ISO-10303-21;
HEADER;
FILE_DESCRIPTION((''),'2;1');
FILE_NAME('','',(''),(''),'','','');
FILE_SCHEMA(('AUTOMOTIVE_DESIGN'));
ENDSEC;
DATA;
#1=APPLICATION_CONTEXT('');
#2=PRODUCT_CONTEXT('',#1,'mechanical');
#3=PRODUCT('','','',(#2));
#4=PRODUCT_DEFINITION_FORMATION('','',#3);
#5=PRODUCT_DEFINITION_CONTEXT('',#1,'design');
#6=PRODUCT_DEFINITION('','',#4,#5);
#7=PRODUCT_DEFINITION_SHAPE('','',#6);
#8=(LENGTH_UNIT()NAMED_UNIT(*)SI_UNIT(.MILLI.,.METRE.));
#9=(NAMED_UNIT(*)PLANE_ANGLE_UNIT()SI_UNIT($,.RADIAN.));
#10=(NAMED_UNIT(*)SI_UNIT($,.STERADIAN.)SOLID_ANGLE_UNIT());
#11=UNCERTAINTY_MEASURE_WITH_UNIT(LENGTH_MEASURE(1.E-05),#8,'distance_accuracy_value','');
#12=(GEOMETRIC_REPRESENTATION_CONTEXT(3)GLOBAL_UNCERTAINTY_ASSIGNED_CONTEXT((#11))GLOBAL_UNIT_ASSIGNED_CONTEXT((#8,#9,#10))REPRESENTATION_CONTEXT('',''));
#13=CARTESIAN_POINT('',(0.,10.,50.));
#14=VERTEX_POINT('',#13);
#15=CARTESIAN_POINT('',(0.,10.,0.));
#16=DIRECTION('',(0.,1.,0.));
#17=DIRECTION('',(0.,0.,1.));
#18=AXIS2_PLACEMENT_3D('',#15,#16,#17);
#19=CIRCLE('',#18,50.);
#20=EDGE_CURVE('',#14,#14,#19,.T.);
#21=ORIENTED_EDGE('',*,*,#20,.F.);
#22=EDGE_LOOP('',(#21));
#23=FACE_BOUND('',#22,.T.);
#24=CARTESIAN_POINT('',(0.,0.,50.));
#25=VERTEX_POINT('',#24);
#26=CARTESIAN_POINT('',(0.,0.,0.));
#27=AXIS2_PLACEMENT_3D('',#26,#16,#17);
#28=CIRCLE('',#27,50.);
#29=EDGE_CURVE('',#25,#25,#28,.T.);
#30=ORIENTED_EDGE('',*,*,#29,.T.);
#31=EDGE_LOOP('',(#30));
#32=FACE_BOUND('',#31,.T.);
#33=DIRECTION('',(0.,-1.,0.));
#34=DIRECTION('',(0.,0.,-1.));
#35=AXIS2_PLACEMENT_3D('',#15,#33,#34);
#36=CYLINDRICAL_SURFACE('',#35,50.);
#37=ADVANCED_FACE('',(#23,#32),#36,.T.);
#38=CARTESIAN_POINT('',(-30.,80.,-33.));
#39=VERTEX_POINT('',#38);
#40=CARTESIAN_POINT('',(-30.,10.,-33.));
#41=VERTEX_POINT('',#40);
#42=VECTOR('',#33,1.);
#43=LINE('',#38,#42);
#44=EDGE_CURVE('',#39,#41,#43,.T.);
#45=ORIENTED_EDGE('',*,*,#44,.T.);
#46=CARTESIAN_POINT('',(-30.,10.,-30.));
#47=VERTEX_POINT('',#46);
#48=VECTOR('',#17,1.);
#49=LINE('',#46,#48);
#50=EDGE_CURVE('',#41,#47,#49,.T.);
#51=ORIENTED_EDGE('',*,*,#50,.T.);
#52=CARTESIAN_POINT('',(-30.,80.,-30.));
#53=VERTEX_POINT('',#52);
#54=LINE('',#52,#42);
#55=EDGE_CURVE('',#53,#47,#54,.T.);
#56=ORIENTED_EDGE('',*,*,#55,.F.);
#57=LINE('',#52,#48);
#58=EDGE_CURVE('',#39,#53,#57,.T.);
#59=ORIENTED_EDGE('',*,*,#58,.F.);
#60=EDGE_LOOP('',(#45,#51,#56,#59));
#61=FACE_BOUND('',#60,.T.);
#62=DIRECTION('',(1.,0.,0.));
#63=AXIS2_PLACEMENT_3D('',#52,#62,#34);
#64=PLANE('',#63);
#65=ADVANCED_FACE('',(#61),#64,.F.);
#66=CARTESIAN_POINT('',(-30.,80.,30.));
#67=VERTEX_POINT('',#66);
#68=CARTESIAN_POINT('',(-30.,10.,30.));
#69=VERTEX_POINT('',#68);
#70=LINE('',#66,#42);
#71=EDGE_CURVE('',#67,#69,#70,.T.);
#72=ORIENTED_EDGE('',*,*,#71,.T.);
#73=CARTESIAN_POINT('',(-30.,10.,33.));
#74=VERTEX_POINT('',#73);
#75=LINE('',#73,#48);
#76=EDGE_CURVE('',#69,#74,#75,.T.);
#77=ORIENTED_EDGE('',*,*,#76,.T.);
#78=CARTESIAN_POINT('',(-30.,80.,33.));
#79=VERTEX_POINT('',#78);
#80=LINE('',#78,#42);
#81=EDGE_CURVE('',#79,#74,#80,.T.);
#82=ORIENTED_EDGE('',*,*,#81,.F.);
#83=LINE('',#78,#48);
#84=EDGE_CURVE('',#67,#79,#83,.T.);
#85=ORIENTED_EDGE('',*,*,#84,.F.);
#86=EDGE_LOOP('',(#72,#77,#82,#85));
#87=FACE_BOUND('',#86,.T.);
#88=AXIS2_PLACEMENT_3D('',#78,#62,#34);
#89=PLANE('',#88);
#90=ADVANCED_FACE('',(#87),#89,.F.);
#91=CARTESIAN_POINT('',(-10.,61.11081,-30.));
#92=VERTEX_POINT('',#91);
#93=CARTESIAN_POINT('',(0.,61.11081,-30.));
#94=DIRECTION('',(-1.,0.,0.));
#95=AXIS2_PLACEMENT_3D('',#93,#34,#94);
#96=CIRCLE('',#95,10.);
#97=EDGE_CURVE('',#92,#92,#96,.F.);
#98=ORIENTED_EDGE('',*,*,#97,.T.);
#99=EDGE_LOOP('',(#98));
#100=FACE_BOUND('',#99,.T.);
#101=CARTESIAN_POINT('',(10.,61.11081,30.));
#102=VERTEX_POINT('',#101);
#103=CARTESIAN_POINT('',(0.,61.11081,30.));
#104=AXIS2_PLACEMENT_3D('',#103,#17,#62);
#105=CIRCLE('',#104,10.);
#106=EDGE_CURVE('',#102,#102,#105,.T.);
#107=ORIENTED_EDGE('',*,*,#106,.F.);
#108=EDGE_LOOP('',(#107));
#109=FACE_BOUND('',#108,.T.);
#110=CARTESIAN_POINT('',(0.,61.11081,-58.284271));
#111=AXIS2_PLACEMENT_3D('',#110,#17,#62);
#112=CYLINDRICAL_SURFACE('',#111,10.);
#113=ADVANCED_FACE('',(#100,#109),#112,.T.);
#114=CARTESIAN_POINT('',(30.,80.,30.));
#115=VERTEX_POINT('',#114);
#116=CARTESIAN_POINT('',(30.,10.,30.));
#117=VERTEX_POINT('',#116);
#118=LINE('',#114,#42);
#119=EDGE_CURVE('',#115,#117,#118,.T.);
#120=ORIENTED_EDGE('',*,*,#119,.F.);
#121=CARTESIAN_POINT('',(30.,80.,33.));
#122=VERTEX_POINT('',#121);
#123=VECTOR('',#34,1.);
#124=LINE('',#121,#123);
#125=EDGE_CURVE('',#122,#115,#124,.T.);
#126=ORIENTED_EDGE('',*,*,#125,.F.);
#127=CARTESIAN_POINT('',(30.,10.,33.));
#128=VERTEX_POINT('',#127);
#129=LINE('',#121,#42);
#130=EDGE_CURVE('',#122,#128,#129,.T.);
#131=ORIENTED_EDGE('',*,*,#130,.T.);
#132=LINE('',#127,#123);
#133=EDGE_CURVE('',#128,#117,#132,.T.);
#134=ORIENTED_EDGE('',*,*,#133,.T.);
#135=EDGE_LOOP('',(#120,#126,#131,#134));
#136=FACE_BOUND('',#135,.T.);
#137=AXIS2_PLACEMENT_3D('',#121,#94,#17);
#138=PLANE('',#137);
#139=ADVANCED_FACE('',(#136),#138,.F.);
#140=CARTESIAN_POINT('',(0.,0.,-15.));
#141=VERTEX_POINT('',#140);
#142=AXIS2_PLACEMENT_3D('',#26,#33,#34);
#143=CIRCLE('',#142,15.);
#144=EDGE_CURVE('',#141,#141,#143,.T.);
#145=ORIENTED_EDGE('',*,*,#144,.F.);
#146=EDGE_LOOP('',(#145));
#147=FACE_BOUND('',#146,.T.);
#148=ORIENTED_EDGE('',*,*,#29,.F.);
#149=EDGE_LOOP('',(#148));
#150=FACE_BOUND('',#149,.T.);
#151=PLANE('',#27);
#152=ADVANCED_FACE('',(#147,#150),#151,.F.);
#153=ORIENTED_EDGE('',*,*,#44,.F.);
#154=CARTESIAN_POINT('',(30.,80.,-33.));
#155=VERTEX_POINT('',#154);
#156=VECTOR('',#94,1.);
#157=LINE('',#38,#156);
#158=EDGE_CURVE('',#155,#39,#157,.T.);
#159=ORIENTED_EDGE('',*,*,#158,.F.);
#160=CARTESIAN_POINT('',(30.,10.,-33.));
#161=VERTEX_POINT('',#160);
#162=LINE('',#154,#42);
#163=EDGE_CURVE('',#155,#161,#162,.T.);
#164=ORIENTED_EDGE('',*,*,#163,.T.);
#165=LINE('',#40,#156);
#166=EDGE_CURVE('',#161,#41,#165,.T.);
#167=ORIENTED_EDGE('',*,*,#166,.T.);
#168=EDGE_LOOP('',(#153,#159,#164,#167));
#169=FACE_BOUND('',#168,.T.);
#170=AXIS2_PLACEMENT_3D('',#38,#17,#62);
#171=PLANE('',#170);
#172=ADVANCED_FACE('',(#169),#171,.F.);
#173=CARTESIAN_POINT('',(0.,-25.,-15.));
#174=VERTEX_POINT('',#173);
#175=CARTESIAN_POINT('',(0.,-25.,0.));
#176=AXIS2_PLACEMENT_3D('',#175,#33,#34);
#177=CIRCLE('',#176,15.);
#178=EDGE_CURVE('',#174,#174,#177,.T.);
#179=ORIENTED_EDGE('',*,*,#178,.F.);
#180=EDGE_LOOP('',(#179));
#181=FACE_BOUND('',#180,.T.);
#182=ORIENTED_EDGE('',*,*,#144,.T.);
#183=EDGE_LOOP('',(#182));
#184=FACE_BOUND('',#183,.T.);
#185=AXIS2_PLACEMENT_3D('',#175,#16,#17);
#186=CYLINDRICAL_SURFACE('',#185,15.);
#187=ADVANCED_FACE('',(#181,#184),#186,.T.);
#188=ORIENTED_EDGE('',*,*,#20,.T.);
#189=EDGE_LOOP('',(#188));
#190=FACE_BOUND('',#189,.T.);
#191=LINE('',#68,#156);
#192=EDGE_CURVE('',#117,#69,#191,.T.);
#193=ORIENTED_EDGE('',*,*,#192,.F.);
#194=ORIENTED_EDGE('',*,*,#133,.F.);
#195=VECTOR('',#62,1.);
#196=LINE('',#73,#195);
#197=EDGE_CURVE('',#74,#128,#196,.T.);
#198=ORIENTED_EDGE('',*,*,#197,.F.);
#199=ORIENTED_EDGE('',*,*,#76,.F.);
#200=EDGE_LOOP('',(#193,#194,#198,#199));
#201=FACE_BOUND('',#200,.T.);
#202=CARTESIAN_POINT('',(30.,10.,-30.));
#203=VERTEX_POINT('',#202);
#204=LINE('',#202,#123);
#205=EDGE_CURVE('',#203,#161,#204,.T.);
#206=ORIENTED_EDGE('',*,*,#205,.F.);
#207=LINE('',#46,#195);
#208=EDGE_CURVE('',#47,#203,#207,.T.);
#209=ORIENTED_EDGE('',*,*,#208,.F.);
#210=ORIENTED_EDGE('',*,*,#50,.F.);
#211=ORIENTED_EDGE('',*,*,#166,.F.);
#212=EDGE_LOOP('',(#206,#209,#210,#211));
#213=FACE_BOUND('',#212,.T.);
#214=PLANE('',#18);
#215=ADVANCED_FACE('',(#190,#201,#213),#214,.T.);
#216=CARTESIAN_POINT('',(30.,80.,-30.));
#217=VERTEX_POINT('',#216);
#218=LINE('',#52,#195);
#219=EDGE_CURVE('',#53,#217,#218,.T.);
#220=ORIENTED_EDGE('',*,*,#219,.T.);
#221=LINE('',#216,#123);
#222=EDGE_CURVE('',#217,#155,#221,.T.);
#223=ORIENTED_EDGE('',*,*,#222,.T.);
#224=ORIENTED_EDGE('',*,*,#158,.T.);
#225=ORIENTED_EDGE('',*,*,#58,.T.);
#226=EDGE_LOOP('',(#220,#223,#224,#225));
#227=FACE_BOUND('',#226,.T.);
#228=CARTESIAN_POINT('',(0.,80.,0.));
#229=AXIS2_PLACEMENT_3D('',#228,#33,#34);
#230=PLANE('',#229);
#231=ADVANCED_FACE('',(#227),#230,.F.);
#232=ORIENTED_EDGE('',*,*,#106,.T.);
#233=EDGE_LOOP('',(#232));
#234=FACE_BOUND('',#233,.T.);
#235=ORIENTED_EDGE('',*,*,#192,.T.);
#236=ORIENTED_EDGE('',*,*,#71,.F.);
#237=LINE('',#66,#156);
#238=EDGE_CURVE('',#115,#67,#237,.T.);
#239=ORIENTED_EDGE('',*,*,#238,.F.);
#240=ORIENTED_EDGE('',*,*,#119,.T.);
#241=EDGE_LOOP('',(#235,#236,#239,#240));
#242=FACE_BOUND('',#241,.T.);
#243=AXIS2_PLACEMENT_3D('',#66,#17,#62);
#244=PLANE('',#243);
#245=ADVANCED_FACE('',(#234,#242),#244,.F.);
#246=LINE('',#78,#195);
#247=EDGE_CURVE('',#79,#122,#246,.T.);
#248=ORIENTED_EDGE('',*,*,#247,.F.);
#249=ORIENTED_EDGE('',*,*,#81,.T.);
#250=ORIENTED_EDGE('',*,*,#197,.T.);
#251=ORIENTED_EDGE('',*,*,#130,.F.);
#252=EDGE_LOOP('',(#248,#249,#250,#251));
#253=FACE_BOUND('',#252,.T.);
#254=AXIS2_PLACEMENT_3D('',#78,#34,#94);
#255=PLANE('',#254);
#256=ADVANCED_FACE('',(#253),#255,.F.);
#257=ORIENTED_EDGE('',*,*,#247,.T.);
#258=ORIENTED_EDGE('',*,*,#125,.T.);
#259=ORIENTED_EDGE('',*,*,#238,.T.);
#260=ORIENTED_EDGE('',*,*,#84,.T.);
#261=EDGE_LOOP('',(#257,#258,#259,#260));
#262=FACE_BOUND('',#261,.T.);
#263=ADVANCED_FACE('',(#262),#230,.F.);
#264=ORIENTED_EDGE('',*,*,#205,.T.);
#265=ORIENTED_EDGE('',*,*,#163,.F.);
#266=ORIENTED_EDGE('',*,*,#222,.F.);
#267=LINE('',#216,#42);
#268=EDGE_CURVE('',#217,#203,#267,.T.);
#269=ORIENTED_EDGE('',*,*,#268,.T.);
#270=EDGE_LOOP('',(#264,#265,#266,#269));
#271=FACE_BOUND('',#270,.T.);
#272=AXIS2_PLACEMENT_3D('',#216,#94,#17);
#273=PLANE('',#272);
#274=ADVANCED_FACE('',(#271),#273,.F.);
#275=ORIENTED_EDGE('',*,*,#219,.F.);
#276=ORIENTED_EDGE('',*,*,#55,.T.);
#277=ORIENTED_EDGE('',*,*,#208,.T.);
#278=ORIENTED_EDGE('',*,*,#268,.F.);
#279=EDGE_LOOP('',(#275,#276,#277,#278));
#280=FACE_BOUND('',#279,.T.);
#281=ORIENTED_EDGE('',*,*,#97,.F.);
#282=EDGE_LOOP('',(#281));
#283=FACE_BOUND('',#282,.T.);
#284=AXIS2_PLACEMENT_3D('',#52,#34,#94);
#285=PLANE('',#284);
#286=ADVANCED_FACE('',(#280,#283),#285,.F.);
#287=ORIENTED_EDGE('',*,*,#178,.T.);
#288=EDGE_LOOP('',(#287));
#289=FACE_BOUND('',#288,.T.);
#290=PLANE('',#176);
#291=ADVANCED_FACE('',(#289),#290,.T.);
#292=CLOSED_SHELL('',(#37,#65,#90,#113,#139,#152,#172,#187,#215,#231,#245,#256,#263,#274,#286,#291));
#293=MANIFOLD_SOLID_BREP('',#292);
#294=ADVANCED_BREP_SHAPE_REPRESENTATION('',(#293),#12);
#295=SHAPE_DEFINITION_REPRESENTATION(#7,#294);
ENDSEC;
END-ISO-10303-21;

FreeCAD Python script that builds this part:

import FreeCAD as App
import Part
import Sketcher

V = App.Vector

doc = App.newDocument("Part")
params = doc.addObject("Spreadsheet::Sheet", "Params")
for row, (alias, value) in enumerate([
    ("sketch1_diameter", "100 mm"),
    ("pad1_length", "10 mm"),
    ("sketch2_diameter", "30 mm"),
    ("pad2_length", "25 mm"),
    ("sketch3_width", "60 mm"),
    ("sketch3_height", "3 mm"),
    ("pad3_length", "70 mm"),
    ("sketch4_diameter", "20 mm"),
    ("pad4_length", "63 mm"),
], start=1):
    params.set(f"A{row}", alias)
    params.set(f"B{row}", "=" + value)
    params.setAlias(f"B{row}", alias)

body = doc.addObject("PartDesign::Body", "Body")

# Sketch on XZ plane
sketch1 = body.newObject("Sketcher::SketchObject", "Sketch")
sketch1.AttachmentSupport = (doc.getObject("XZ_Plane"), [""])
sketch1.MapMode = "FlatFace"
sketch1.addGeometry(Part.Circle(V(0, 0, 0), V(0, 0, 1), 50), False)
sketch1.addConstraint([
    Sketcher.Constraint("Coincident", 0, 3, -1, 1),
    Sketcher.Constraint("Diameter", 0, 100.0),
])
sketch1.setExpression("Constraints[1]", "Params.sketch1_diameter")
pad1 = body.newObject("PartDesign::Pad", "Pad")
pad1.Profile = sketch1
pad1.setExpression("Length", "Params.pad1_length")
pad1.Reversed = True

# Sketch on XZ plane
sketch2 = body.newObject("Sketcher::SketchObject", "Sketch001")
sketch2.AttachmentSupport = (doc.getObject("XZ_Plane"), [""])
sketch2.MapMode = "FlatFace"
sketch2.addGeometry(Part.Circle(V(0, 0, 0), V(0, 0, 1), 15), False)
sketch2.addConstraint([
    Sketcher.Constraint("Coincident", 0, 3, -1, 1),
    Sketcher.Constraint("Diameter", 0, 30.0),
])
sketch2.setExpression("Constraints[1]", "Params.sketch2_diameter")
pad2 = body.newObject("PartDesign::Pad", "Pad001")
pad2.Profile = sketch2
pad2.setExpression("Length", "Params.pad2_length")

# Sketch on XZ plane
sketch3 = body.newObject("Sketcher::SketchObject", "Sketch002")
sketch3.AttachmentSupport = (doc.getObject("XZ_Plane"), [""])
sketch3.MapMode = "FlatFace"
sketch3.AttachmentOffset = App.Placement(V(0, 0, -10), App.Rotation())
sketch3.addGeometry([
    Part.LineSegment(V(-30, 30, 0), V(-30, 33, 0)),  # 0
    Part.LineSegment(V(-30, 33, 0), V(30, 33, 0)),  # 1
    Part.LineSegment(V(30, 33, 0), V(30, 30, 0)),  # 2
    Part.LineSegment(V(30, 30, 0), V(-30, 30, 0)),  # 3
    Part.LineSegment(V(-30, -33, 0), V(-30, -30, 0)),  # 4
    Part.LineSegment(V(-30, -30, 0), V(30, -30, 0)),  # 5
    Part.LineSegment(V(30, -30, 0), V(30, -33, 0)),  # 6
    Part.LineSegment(V(30, -33, 0), V(-30, -33, 0)),  # 7
], False)
sketch3.addConstraint([
    Sketcher.Constraint("Coincident", 0, 2, 1, 1),
    Sketcher.Constraint("Coincident", 1, 2, 2, 1),
    Sketcher.Constraint("Coincident", 2, 2, 3, 1),
    Sketcher.Constraint("Coincident", 3, 2, 0, 1),
    Sketcher.Constraint("Coincident", 4, 2, 5, 1),
    Sketcher.Constraint("Coincident", 5, 2, 6, 1),
    Sketcher.Constraint("Coincident", 6, 2, 7, 1),
    Sketcher.Constraint("Coincident", 7, 2, 4, 1),
    Sketcher.Constraint("Vertical", 0),
    Sketcher.Constraint("Horizontal", 1),
    Sketcher.Constraint("Vertical", 2),
    Sketcher.Constraint("Horizontal", 3),
    Sketcher.Constraint("Vertical", 4),
    Sketcher.Constraint("Horizontal", 5),
    Sketcher.Constraint("Vertical", 6),
    Sketcher.Constraint("Horizontal", 7),
    Sketcher.Constraint("Symmetric", 2, 2, 4, 2, -1, 1),
    Sketcher.Constraint("Symmetric", 0, 2, 6, 2, -1, 1),
    Sketcher.Constraint("Vertical", 3, 2, 4, 2),
    Sketcher.Constraint("DistanceX", 1, 1, 1, 2, 60.0),
    Sketcher.Constraint("DistanceY", 0, 1, 0, 2, 3.0),
    Sketcher.Constraint("DistanceY", -1, 1, 0, 2, 33.0),
])
sketch3.setExpression("Constraints[19]", "Params.sketch3_width")
sketch3.setExpression("Constraints[20]", "Params.sketch3_height")
pad3 = body.newObject("PartDesign::Pad", "Pad002")
pad3.Profile = sketch3
pad3.setExpression("Length", "Params.pad3_length")
pad3.Reversed = True

# Sketch on XY plane
sketch4 = body.newObject("Sketcher::SketchObject", "Sketch003")
sketch4.AttachmentSupport = (doc.getObject("XY_Plane"), [""])
sketch4.MapMode = "FlatFace"
sketch4.AttachmentOffset = App.Placement(V(0, 0, 33), App.Rotation())
sketch4.addGeometry(Part.Circle(V(0, 61, 0), V(0, 0, 1), 10), False)
sketch4.addConstraint([
    Sketcher.Constraint("PointOnObject", 0, 3, -2),
    Sketcher.Constraint("Diameter", 0, 20.0),
    Sketcher.Constraint("DistanceY", -1, 1, 0, 3, 61.11081),
])
sketch4.setExpression("Constraints[1]", "Params.sketch4_diameter")
pad4 = body.newObject("PartDesign::Pad", "Pad003")
pad4.Profile = sketch4
pad4.setExpression("Length", "Params.pad4_length")
pad4.Reversed = True

doc.recompute()
